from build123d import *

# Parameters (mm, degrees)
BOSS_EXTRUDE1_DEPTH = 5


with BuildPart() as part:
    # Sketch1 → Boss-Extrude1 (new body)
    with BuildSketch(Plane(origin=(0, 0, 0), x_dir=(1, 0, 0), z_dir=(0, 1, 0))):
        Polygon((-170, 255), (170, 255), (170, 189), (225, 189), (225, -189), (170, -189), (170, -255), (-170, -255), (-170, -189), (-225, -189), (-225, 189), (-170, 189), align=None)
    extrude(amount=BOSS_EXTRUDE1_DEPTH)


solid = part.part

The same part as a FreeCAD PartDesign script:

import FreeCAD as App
import Part
import Sketcher

doc = App.newDocument("Part")
params = doc.addObject("Spreadsheet::Sheet", "Params")
for row, (alias, value) in enumerate([
    ("sketch1_width", "340 mm"),
    ("sketch1_width2", "55 mm"),
    ("sketch1_height", "66 mm"),
    ("sketch1_height2", "378 mm"),
    ("pad1_length", "5 mm"),
], start=1):
    params.set(f"A{row}", alias)
    params.set(f"B{row}", "=" + value)
    params.setAlias(f"B{row}", alias)

body = doc.addObject("PartDesign::Body", "Body")

sketch1 = doc.addObject("Sketcher::SketchObject", "Sketch")
body.addObject(sketch1)
sketch1.AttachmentSupport = (doc.XZ_Plane, [""])
sketch1.MapMode = "FlatFace"
sketch1.addGeometry([
    Part.LineSegment(App.Vector(170, -255, 0), App.Vector(-170, -255, 0)),
    Part.LineSegment(App.Vector(-170, -255, 0), App.Vector(-170, -189, 0)),
    Part.LineSegment(App.Vector(-170, -189, 0), App.Vector(-225, -189, 0)),
    Part.LineSegment(App.Vector(-225, -189, 0), App.Vector(-225, 189, 0)),
    Part.LineSegment(App.Vector(-225, 189, 0), App.Vector(-170, 189, 0)),
    Part.LineSegment(App.Vector(-170, 189, 0), App.Vector(-170, 255, 0)),
    Part.LineSegment(App.Vector(-170, 255, 0), App.Vector(170, 255, 0)),
    Part.LineSegment(App.Vector(170, 255, 0), App.Vector(170, 189, 0)),
    Part.LineSegment(App.Vector(170, 189, 0), App.Vector(225, 189, 0)),
    Part.LineSegment(App.Vector(225, 189, 0), App.Vector(225, -189, 0)),
    Part.LineSegment(App.Vector(225, -189, 0), App.Vector(170, -189, 0)),
    Part.LineSegment(App.Vector(170, -189, 0), App.Vector(170, -255, 0)),
], False)
sketch1.addConstraint([
    Sketcher.Constraint("Coincident", 0, 2, 1, 1),
    Sketcher.Constraint("Coincident", 1, 2, 2, 1),
    Sketcher.Constraint("Coincident", 2, 2, 3, 1),
    Sketcher.Constraint("Coincident", 3, 2, 4, 1),
    Sketcher.Constraint("Coincident", 4, 2, 5, 1),
    Sketcher.Constraint("Coincident", 5, 2, 6, 1),
    Sketcher.Constraint("Coincident", 6, 2, 7, 1),
    Sketcher.Constraint("Coincident", 7, 2, 8, 1),
    Sketcher.Constraint("Coincident", 8, 2, 9, 1),
    Sketcher.Constraint("Coincident", 9, 2, 10, 1),
    Sketcher.Constraint("Coincident", 10, 2, 11, 1),
    Sketcher.Constraint("Coincident", 11, 2, 0, 1),
    Sketcher.Constraint("Horizontal", 0),
    Sketcher.Constraint("Vertical", 1),
    Sketcher.Constraint("Horizontal", 2),
    Sketcher.Constraint("Vertical", 3),
    Sketcher.Constraint("Horizontal", 4),
    Sketcher.Constraint("Vertical", 5),
    Sketcher.Constraint("Horizontal", 6),
    Sketcher.Constraint("Vertical", 7),
    Sketcher.Constraint("Horizontal", 8),
    Sketcher.Constraint("Vertical", 9),
    Sketcher.Constraint("Horizontal", 10),
    Sketcher.Constraint("Vertical", 11),
    Sketcher.Constraint("Symmetric", 0, 2, 6, 2, -1, 1),
    Sketcher.Constraint("Symmetric", 2, 2, 8, 2, -1, 1),
    Sketcher.Constraint("Symmetric", 4, 2, 10, 2, -1, 1),
    Sketcher.Constraint("Symmetric", 4, 2, 7, 2, -2),
    Sketcher.Constraint("DistanceX", 0, 2, 0, 1, 340.0),
    Sketcher.Constraint("DistanceX", 2, 2, 2, 1, 55.0),
    Sketcher.Constraint("DistanceY", 1, 1, 1, 2, 66.0),
    Sketcher.Constraint("DistanceY", 3, 1, 3, 2, 378.0),
])
sketch1.setExpression("Constraints[28]", "Params.sketch1_width")
sketch1.setExpression("Constraints[29]", "Params.sketch1_width2")
sketch1.setExpression("Constraints[30]", "Params.sketch1_height")
sketch1.setExpression("Constraints[31]", "Params.sketch1_height2")
pad1 = doc.addObject("PartDesign::Pad", "Pad")
body.addObject(pad1)
pad1.Profile = sketch1
pad1.setExpression("Length", "Params.pad1_length")
pad1.Reversed = True

doc.recompute()
